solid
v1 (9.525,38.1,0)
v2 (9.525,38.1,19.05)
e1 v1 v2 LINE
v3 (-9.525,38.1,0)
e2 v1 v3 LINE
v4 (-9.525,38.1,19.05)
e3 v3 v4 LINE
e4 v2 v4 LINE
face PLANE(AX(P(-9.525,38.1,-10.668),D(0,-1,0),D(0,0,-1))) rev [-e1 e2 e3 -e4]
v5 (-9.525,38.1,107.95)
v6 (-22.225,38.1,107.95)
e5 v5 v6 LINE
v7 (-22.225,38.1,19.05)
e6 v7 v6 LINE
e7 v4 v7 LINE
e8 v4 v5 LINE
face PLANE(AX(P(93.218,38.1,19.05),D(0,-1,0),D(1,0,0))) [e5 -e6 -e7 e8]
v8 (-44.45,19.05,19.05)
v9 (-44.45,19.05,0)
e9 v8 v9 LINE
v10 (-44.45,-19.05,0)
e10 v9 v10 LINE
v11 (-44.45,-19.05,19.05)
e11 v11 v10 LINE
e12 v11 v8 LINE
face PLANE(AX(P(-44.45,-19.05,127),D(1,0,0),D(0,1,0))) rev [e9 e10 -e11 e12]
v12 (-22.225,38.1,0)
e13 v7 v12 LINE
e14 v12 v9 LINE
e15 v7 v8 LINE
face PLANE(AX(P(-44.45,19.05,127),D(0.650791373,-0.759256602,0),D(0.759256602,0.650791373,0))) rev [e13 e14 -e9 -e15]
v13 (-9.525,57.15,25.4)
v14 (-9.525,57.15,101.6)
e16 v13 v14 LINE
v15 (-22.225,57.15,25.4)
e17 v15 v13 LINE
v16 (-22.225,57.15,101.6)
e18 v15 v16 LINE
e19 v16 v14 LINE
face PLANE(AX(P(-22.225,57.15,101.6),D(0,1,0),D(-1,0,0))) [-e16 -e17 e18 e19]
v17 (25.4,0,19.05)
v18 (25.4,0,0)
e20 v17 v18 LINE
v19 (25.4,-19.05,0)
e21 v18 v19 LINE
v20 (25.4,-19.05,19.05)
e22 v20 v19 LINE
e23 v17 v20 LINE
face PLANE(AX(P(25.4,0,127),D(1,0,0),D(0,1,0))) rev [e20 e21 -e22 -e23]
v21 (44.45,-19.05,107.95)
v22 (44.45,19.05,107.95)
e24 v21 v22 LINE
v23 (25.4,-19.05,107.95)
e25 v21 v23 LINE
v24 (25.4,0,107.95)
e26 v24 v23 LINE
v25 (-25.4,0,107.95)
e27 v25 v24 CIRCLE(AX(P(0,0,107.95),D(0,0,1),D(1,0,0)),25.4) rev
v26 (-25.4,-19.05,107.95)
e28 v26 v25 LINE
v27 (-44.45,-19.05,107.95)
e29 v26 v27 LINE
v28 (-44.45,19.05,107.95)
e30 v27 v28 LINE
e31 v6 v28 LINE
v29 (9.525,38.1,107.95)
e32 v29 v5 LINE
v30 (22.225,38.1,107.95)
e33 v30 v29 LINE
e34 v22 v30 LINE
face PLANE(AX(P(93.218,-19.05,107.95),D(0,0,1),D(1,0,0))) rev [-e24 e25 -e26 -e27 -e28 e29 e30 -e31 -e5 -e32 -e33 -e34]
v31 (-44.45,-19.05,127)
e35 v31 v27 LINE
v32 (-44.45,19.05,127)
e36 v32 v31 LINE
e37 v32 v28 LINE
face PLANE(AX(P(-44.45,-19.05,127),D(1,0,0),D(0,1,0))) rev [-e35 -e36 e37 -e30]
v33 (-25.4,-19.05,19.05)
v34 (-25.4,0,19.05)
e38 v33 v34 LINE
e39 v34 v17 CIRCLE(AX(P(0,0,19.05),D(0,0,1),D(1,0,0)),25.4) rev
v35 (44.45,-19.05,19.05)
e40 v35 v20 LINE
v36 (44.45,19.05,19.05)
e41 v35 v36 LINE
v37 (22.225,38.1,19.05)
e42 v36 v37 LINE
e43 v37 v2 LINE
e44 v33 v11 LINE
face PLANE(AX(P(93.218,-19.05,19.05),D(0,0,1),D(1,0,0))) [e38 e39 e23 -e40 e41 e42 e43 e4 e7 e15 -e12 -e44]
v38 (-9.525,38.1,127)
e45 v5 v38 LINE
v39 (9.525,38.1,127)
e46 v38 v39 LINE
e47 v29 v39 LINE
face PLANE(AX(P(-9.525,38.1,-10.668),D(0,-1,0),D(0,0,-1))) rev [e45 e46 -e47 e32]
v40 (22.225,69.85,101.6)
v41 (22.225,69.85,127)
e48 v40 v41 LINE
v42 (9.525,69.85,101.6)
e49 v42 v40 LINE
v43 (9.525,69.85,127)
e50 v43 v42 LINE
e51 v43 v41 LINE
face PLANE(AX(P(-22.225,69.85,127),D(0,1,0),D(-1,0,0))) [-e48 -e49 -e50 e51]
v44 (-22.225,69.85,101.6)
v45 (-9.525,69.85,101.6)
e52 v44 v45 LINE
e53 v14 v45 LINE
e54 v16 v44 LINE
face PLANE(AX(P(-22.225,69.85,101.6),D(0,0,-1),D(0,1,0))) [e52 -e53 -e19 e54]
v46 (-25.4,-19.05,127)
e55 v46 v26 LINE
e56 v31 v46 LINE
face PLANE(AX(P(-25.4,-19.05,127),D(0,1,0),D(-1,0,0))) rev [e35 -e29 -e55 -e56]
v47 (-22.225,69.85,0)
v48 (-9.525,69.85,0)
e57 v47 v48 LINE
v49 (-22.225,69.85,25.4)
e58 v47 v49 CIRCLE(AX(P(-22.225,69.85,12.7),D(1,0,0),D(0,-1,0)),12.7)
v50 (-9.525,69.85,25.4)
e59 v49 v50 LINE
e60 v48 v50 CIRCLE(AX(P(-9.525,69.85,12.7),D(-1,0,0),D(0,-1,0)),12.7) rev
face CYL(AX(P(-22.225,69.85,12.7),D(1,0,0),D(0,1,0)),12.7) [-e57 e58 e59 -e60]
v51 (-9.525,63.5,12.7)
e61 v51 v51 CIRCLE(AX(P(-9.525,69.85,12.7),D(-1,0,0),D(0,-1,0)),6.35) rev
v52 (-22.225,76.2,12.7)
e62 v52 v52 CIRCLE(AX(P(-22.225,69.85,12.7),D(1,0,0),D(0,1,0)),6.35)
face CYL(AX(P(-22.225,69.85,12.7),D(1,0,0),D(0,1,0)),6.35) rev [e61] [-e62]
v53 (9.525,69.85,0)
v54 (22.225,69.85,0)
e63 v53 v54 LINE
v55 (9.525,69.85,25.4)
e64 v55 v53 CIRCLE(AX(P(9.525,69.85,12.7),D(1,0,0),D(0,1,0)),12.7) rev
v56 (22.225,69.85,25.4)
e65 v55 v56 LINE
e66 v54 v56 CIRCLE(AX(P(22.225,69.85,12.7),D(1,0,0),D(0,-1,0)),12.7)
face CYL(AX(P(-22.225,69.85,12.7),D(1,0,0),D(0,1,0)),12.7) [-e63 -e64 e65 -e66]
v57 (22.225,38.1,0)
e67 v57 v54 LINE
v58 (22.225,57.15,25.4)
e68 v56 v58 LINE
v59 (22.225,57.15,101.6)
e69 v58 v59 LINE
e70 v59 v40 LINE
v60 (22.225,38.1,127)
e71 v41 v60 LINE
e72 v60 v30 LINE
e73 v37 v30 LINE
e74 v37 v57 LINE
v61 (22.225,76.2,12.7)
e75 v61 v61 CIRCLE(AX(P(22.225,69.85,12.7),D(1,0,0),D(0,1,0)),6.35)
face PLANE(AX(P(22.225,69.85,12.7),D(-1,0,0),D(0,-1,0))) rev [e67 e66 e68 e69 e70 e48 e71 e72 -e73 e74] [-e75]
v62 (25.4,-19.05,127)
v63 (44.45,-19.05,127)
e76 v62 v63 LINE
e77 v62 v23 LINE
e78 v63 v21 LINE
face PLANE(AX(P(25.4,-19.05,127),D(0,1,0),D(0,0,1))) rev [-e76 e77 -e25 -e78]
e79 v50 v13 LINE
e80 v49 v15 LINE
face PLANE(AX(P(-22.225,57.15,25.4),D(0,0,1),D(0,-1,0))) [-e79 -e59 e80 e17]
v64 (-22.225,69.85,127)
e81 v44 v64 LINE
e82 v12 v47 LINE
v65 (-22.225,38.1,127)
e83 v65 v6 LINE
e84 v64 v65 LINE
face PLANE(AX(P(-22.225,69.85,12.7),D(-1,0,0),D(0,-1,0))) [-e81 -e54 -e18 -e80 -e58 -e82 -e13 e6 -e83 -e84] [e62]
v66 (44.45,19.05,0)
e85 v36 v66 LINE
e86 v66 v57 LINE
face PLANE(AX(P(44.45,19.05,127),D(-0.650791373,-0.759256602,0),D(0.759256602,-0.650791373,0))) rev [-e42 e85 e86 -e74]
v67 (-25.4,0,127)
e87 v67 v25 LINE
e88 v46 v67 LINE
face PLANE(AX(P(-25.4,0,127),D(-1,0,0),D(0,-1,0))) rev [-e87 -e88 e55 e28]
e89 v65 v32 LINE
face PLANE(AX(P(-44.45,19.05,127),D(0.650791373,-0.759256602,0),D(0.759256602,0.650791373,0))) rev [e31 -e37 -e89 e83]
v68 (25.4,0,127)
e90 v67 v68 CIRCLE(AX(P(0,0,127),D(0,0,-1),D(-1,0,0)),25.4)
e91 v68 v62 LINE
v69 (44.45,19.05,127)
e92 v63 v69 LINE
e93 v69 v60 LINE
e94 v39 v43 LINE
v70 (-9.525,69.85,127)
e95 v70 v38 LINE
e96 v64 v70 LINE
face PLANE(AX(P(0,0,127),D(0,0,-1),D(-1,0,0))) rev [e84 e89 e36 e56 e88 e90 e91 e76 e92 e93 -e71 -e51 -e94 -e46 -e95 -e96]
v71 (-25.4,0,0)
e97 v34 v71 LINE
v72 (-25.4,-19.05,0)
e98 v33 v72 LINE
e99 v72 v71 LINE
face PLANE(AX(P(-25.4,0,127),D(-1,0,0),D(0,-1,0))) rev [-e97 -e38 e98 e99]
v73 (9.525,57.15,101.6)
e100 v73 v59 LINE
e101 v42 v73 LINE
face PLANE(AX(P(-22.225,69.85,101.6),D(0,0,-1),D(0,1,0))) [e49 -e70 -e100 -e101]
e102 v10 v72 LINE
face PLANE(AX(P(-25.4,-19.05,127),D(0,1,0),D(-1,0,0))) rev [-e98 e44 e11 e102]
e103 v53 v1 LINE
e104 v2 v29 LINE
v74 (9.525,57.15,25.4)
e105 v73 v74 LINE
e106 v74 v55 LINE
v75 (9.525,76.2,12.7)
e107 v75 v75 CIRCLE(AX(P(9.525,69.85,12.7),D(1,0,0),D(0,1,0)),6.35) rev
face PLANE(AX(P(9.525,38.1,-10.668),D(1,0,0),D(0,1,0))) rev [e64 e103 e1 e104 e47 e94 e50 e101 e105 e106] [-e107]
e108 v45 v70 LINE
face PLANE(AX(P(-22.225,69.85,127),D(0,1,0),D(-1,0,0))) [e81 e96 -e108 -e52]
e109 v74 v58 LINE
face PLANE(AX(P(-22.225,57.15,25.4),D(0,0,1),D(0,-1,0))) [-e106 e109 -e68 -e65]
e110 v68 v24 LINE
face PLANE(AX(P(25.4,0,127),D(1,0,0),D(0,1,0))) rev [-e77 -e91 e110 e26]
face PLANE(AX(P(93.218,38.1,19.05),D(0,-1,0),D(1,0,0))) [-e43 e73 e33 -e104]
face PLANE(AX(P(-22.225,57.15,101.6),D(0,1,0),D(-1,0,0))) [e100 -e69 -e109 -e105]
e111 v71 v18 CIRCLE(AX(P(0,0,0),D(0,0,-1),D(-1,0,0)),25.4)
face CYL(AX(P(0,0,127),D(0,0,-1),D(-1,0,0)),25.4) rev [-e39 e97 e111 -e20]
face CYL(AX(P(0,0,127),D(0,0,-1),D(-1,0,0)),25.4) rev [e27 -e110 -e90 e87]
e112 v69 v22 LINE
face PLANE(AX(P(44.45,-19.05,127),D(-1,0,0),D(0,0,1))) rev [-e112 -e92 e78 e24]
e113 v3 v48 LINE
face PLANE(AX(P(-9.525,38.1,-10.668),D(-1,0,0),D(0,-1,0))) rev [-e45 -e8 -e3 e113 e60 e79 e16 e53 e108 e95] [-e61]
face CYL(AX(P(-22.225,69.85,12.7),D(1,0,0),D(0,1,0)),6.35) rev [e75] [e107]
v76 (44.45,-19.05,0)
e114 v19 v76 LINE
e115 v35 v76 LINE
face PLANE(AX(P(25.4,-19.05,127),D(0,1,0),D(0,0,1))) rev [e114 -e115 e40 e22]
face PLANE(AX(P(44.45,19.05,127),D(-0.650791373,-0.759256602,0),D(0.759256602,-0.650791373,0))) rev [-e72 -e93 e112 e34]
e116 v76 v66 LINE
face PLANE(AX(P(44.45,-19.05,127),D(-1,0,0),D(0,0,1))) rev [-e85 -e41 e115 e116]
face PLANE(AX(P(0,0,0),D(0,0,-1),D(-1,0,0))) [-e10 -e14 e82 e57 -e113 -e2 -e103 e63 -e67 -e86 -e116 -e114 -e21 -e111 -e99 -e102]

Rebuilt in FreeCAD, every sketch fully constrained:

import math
import FreeCAD as App
import Part
import Sketcher
Q = App.Units.Quantity

doc = App.newDocument("Part")
body = doc.addObject("PartDesign::Body", "Body")

sketch1 = doc.addObject("Sketcher::SketchObject", "Sketch")
body.addObject(sketch1)
sketch1.AttachmentSupport = (doc.XY_Plane, [""])
sketch1.MapMode = "FlatFace"
sketch1.addGeometry(Part.LineSegment(App.Vector(25, 0, 0), App.Vector(25, -19, 0)), False)
sketch1.addGeometry(Part.LineSegment(App.Vector(25, -19, 0), App.Vector(44, -19, 0)), False)
sketch1.addGeometry(Part.LineSegment(App.Vector(44, -19, 0), App.Vector(44, 19, 0)), False)
sketch1.addGeometry(Part.LineSegment(App.Vector(44, 19, 0), App.Vector(22, 38, 0)), False)
sketch1.addGeometry(Part.LineSegment(App.Vector(22, 38, 0), App.Vector(-22, 38, 0)), False)
sketch1.addGeometry(Part.LineSegment(App.Vector(-22, 38, 0), App.Vector(-44, 19, 0)), False)
sketch1.addGeometry(Part.LineSegment(App.Vector(-44, 19, 0), App.Vector(-44, -19, 0)), False)
sketch1.addGeometry(Part.LineSegment(App.Vector(-44, -19, 0), App.Vector(-25, -19, 0)), False)
sketch1.addGeometry(Part.LineSegment(App.Vector(-25, -19, 0), App.Vector(-25, 0, 0)), False)
sketch1.addGeometry(Part.ArcOfCircle(Part.Circle(App.Vector(0, 0, 0), App.Vector(0, 0, 1), 25), math.radians(0), math.radians(180)), False)
sketch1.addConstraint(Sketcher.Constraint("Coincident", 0, 2, 1, 1))
sketch1.addConstraint(Sketcher.Constraint("Coincident", 1, 2, 2, 1))
sketch1.addConstraint(Sketcher.Constraint("Coincident", 2, 2, 3, 1))
sketch1.addConstraint(Sketcher.Constraint("Coincident", 3, 2, 4, 1))
sketch1.addConstraint(Sketcher.Constraint("Coincident", 4, 2, 5, 1))
sketch1.addConstraint(Sketcher.Constraint("Coincident", 5, 2, 6, 1))
sketch1.addConstraint(Sketcher.Constraint("Coincident", 6, 2, 7, 1))
sketch1.addConstraint(Sketcher.Constraint("Coincident", 7, 2, 8, 1))
sketch1.addConstraint(Sketcher.Constraint("Tangent", 8, 2, 9, 2))
sketch1.addConstraint(Sketcher.Constraint("Tangent", 9, 1, 0, 1))
sketch1.addConstraint(Sketcher.Constraint("Vertical", 0))
sketch1.addConstraint(Sketcher.Constraint("Horizontal", 1))
sketch1.addConstraint(Sketcher.Constraint("Vertical", 2))
sketch1.addConstraint(Sketcher.Constraint("Horizontal", 4))
sketch1.addConstraint(Sketcher.Constraint("Vertical", 6))
sketch1.addConstraint(Sketcher.Constraint("Horizontal", 7))
sketch1.addConstraint(Sketcher.Constraint("Vertical", 8))
sketch1.addConstraint(Sketcher.Constraint("Coincident", 9, 3, -1, 1))
sketch1.addConstraint(Sketcher.Constraint("Symmetric", 1, 2, 5, 2, -1, 1))
sketch1.addConstraint(Sketcher.Constraint("Horizontal", 2, 2, 5, 2))
sketch1.addConstraint(Sketcher.Constraint("Horizontal", 1, 2, 6, 2))
sketch1.addConstraint(Sketcher.Constraint("Equal", 7, 0))
sketch1.addConstraint(Sketcher.Constraint("Equal", 3, 5))
sketch1.addConstraint(Sketcher.Constraint("Radius", 9, Q("1 in")))
sketch1.addConstraint(Sketcher.Constraint("DistanceY", 2, 1, 2, 2, Q("1.5 in")))
sketch1.addConstraint(Sketcher.Constraint("DistanceX", 4, 2, 4, 1, Q("1.75 in")))
sketch1.addConstraint(Sketcher.Constraint("DistanceY", -1, 1, 3, 2, Q("1.5 in")))
pad1 = doc.addObject("PartDesign::Pad", "Pad")
body.addObject(pad1)
pad1.Profile = sketch1
pad1.Length = Q("5 in")

sketch2 = doc.addObject("Sketcher::SketchObject", "Sketch001")
body.addObject(sketch2)
sketch2.AttachmentSupport = (doc.YZ_Plane, [""])
sketch2.MapMode = "FlatFace"
sketch2.AttachmentOffset = App.Placement(App.Vector(0, 0, 0.875 * 25.4), App.Rotation())
sketch2.addGeometry(Part.LineSegment(App.Vector(38, 127, 0), App.Vector(38, 0, 0)), False)
sketch2.addGeometry(Part.LineSegment(App.Vector(38, 0, 0), App.Vector(70, 0, 0)), False)
sketch2.addGeometry(Part.ArcOfCircle(Part.Circle(App.Vector(70, 13, 0), App.Vector(0, 0, 1), 13), math.radians(-90), math.radians(90)), False)
sketch2.addGeometry(Part.LineSegment(App.Vector(70, 25, 0), App.Vector(57, 25, 0)), False)
sketch2.addGeometry(Part.LineSegment(App.Vector(57, 25, 0), App.Vector(57, 102, 0)), False)
sketch2.addGeometry(Part.LineSegment(App.Vector(57, 102, 0), App.Vector(70, 102, 0)), False)
sketch2.addGeometry(Part.LineSegment(App.Vector(70, 102, 0), App.Vector(70, 127, 0)), False)
sketch2.addGeometry(Part.LineSegment(App.Vector(70, 127, 0), App.Vector(38, 127, 0)), False)
sketch2.addGeometry(Part.Circle(App.Vector(70, 13, 0), App.Vector(0, 0, 1), 6), False)
sketch2.addConstraint(Sketcher.Constraint("Coincident", 0, 2, 1, 1))
sketch2.addConstraint(Sketcher.Constraint("Tangent", 1, 2, 2, 1))
sketch2.addConstraint(Sketcher.Constraint("Tangent", 2, 2, 3, 1))
sketch2.addConstraint(Sketcher.Constraint("Coincident", 3, 2, 4, 1))
sketch2.addConstraint(Sketcher.Constraint("Coincident", 4, 2, 5, 1))
sketch2.addConstraint(Sketcher.Constraint("Coincident", 5, 2, 6, 1))
sketch2.addConstraint(Sketcher.Constraint("Coincident", 6, 2, 7, 1))
sketch2.addConstraint(Sketcher.Constraint("Coincident", 7, 2, 0, 1))
sketch2.addConstraint(Sketcher.Constraint("Vertical", 0))
sketch2.addConstraint(Sketcher.Constraint("Horizontal", 1))
sketch2.addConstraint(Sketcher.Constraint("Horizontal", 3))
sketch2.addConstraint(Sketcher.Constraint("Vertical", 4))
sketch2.addConstraint(Sketcher.Constraint("Horizontal", 5))
sketch2.addConstraint(Sketcher.Constraint("Vertical", 6))
sketch2.addConstraint(Sketcher.Constraint("Horizontal", 7))
sketch2.addConstraint(Sketcher.Constraint("Coincident", 8, 3, 2, 3))
sketch2.addConstraint(Sketcher.Constraint("PointOnObject", 0, 2, -1))
sketch2.addConstraint(Sketcher.Constraint("Vertical", 2, 2, 5, 2))
sketch2.addConstraint(Sketcher.Constraint("Diameter", 8, Q("0.5 in")))
sketch2.addConstraint(Sketcher.Constraint("Radius", 2, Q("0.5 in")))
sketch2.addConstraint(Sketcher.Constraint("DistanceY", 0, 2, 0, 1, Q("5 in")))
sketch2.addConstraint(Sketcher.Constraint("DistanceY", 4, 1, 4, 2, Q("3 in")))
sketch2.addConstraint(Sketcher.Constraint("DistanceX", 3, 2, 3, 1, Q("0.5 in")))
sketch2.addConstraint(Sketcher.Constraint("DistanceX", 1, 1, 1, 2, Q("1.25 in")))
sketch2.addConstraint(Sketcher.Constraint("DistanceX", -1, 1, 0, 2, Q("1.5 in")))
pad2 = doc.addObject("PartDesign::Pad", "Pad001")
body.addObject(pad2)
pad2.Profile = sketch2
pad2.Length = Q("1.75 in")
pad2.Reversed = True

sketch3 = doc.addObject("Sketcher::SketchObject", "Sketch002")
body.addObject(sketch3)
sketch3.AttachmentSupport = (doc.XY_Plane, [""])
sketch3.MapMode = "FlatFace"
sketch3.AttachmentOffset = App.Placement(App.Vector(0, 0, 5 * 25.4), App.Rotation())
sketch3.addGeometry(Part.LineSegment(App.Vector(-10, 114, 0), App.Vector(-10, 38, 0)), False)
sketch3.addGeometry(Part.LineSegment(App.Vector(-10, 38, 0), App.Vector(10, 38, 0)), False)
sketch3.addGeometry(Part.LineSegment(App.Vector(10, 38, 0), App.Vector(10, 114, 0)), False)
sketch3.addGeometry(Part.LineSegment(App.Vector(10, 114, 0), App.Vector(-10, 114, 0)), False)
sketch3.addConstraint(Sketcher.Constraint("Coincident", 0, 2, 1, 1))
sketch3.addConstraint(Sketcher.Constraint("Coincident", 1, 2, 2, 1))
sketch3.addConstraint(Sketcher.Constraint("Coincident", 2, 2, 3, 1))
sketch3.addConstraint(Sketcher.Constraint("Coincident", 3, 2, 0, 1))
sketch3.addConstraint(Sketcher.Constraint("Vertical", 0))
sketch3.addConstraint(Sketcher.Constraint("Horizontal", 1))
sketch3.addConstraint(Sketcher.Constraint("Vertical", 2))
sketch3.addConstraint(Sketcher.Constraint("Horizontal", 3))
sketch3.addConstraint(Sketcher.Constraint("DistanceY", 0, 2, 0, 1, Q("3 in")))
sketch3.addConstraint(Sketcher.Constraint("DistanceX", 1, 1, 1, 2, Q("0.75 in")))
sketch3.addConstraint(Sketcher.Constraint("DistanceY", -1, 1, 0, 2, Q("1.5 in")))
sketch3.addConstraint(Sketcher.Constraint("DistanceX", 0, 2, -1, 1, Q("0.375 in")))
pocket1 = doc.addObject("PartDesign::Pocket", "Pocket")
body.addObject(pocket1)
pocket1.Profile = sketch3
pocket1.Length = Q("5.42 in")

sketch4 = doc.addObject("Sketcher::SketchObject", "Sketch003")
body.addObject(sketch4)
sketch4.AttachmentSupport = (doc.YZ_Plane, [""])
sketch4.MapMode = "FlatFace"
sketch4.AttachmentOffset = App.Placement(App.Vector(0, 0, -1.75 * 25.4), App.Rotation())
sketch4.addGeometry(Part.LineSegment(App.Vector(38, 19, 0), App.Vector(-19, 19, 0)), False)
sketch4.addGeometry(Part.LineSegment(App.Vector(-19, 19, 0), App.Vector(-19, 108, 0)), False)
sketch4.addGeometry(Part.LineSegment(App.Vector(-19, 108, 0), App.Vector(38, 108, 0)), False)
sketch4.addGeometry(Part.LineSegment(App.Vector(38, 108, 0), App.Vector(38, 19, 0)), False)
sketch4.addConstraint(Sketcher.Constraint("Coincident", 0, 2, 1, 1))
sketch4.addConstraint(Sketcher.Constraint("Coincident", 1, 2, 2, 1))
sketch4.addConstraint(Sketcher.Constraint("Coincident", 2, 2, 3, 1))
sketch4.addConstraint(Sketcher.Constraint("Coincident", 3, 2, 0, 1))
sketch4.addConstraint(Sketcher.Constraint("Horizontal", 0))
sketch4.addConstraint(Sketcher.Constraint("Vertical", 1))
sketch4.addConstraint(Sketcher.Constraint("Horizontal", 2))
sketch4.addConstraint(Sketcher.Constraint("Vertical", 3))
sketch4.addConstraint(Sketcher.Constraint("DistanceY", 1, 1, 1, 2, Q("3.5 in")))
sketch4.addConstraint(Sketcher.Constraint("DistanceX", 0, 2, 0, 1, Q("2.25 in")))
sketch4.addConstraint(Sketcher.Constraint("DistanceX", -1, 1, 2, 2, Q("1.5 in")))
sketch4.addConstraint(Sketcher.Constraint("DistanceY", -1, 1, 0, 2, Q("0.75 in")))
pocket2 = doc.addObject("PartDesign::Pocket", "Pocket001")
body.addObject(pocket2)
pocket2.Profile = sketch4
pocket2.Length = Q("5.42 in")
pocket2.Reversed = True

doc.recompute()
